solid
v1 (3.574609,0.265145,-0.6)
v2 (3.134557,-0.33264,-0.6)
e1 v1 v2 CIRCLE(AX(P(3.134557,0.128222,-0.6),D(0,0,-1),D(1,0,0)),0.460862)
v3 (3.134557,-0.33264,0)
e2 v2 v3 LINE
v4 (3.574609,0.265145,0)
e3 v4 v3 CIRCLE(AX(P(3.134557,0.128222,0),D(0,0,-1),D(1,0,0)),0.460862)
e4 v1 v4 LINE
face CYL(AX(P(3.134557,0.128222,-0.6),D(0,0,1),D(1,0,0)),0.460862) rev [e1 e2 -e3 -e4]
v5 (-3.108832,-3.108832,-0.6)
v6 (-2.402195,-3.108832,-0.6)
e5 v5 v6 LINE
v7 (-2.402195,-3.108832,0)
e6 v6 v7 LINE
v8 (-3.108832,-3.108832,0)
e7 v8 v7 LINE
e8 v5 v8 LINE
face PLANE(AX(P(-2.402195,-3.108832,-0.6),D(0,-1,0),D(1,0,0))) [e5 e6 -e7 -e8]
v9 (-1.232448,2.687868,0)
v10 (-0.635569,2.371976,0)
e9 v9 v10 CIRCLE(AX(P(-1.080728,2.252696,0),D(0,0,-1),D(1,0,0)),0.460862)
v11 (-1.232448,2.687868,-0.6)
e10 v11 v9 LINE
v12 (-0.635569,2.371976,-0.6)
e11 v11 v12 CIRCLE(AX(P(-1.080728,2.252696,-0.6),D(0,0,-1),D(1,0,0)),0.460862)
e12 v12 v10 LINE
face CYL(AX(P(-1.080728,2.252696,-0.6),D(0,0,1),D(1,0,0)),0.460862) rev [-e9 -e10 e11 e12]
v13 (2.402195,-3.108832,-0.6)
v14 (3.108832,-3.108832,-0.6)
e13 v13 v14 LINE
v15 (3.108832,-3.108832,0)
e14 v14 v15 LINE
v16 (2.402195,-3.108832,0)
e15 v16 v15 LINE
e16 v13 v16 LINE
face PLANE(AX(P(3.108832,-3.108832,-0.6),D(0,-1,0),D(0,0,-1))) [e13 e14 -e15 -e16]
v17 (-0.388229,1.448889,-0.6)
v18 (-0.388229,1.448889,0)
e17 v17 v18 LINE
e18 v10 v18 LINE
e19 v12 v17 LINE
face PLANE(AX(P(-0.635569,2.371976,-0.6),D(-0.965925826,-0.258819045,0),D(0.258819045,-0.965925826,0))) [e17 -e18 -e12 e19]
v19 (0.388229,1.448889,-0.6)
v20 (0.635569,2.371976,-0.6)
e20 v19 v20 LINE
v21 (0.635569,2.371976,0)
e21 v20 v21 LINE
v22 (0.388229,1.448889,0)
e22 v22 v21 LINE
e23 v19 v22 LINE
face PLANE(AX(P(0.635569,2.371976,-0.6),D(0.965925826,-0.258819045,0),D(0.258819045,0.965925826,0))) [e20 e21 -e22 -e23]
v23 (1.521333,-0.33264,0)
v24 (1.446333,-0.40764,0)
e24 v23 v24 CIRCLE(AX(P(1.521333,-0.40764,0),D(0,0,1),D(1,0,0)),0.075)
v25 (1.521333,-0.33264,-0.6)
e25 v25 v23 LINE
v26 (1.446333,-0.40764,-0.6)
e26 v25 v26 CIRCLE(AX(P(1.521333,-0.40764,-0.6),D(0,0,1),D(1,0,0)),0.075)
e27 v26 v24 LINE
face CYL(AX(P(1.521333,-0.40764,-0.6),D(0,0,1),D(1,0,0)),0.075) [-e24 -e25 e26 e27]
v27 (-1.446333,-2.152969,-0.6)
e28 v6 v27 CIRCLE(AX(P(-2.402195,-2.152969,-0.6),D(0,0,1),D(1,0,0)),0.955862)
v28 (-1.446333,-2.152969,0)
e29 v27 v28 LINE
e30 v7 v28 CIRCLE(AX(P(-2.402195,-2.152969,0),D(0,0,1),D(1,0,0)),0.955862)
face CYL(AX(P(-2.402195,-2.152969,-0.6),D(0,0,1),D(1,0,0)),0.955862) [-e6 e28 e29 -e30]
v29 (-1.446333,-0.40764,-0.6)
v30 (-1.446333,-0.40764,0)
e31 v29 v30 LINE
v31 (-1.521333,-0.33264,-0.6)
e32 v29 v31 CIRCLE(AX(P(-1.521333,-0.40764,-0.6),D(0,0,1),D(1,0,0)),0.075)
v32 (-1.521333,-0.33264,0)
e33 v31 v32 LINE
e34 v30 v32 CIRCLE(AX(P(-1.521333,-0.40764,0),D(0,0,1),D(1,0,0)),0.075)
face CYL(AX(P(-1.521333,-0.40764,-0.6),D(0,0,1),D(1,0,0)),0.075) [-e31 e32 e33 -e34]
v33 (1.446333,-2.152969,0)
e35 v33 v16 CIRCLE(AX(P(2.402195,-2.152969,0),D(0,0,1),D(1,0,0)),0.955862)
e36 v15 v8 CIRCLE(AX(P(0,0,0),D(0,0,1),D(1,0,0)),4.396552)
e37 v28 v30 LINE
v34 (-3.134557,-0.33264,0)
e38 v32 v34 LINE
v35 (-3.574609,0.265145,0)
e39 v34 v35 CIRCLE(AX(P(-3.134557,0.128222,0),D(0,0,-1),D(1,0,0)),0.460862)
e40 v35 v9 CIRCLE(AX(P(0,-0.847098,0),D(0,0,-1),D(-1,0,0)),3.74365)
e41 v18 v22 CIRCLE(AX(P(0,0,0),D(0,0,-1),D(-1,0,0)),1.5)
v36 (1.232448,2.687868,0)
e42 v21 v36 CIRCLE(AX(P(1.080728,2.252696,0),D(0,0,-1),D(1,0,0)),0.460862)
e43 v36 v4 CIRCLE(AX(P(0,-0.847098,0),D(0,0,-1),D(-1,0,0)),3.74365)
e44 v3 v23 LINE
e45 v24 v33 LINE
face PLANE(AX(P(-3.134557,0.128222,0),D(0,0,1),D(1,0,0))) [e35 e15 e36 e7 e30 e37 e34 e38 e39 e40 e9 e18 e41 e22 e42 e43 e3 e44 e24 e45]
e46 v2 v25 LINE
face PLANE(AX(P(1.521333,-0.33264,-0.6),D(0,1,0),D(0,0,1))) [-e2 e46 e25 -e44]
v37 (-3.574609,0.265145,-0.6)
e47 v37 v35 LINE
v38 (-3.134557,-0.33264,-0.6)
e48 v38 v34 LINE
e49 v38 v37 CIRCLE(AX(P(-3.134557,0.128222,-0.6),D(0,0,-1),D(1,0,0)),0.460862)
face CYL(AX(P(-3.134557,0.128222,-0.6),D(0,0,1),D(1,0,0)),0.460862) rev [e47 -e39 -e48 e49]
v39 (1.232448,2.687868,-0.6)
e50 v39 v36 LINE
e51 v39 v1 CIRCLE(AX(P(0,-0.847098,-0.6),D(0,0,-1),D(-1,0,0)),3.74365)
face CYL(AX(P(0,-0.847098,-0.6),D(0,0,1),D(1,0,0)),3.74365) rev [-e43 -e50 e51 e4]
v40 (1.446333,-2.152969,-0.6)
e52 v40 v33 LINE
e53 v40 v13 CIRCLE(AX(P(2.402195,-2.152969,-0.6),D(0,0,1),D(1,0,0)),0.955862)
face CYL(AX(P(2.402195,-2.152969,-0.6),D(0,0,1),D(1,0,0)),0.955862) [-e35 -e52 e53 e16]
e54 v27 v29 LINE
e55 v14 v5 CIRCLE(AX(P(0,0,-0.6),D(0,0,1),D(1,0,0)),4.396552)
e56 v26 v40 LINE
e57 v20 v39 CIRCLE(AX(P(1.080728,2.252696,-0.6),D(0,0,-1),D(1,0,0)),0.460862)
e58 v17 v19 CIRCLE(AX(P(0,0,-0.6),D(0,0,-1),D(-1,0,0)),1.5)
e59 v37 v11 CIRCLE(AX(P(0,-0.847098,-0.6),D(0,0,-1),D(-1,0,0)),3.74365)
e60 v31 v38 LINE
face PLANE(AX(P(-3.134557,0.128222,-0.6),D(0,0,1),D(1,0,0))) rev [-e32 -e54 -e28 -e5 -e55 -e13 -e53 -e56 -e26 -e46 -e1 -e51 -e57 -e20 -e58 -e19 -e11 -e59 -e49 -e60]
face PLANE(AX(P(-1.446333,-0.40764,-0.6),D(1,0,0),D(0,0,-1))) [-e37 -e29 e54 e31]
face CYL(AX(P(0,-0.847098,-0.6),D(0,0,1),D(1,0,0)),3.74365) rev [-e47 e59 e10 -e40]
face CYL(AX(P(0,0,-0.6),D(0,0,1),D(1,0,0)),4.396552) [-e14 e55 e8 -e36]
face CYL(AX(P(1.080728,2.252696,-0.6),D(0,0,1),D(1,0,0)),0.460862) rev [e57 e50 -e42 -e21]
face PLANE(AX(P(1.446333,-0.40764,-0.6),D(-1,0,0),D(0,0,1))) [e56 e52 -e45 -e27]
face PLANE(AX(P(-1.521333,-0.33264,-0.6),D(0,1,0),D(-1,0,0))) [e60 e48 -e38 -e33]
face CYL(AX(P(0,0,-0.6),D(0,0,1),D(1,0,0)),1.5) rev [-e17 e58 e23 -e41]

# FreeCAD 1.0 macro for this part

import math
import FreeCAD as App
import Part
import Sketcher
Q = App.Units.Quantity

doc = App.newDocument("Part")
body = doc.addObject("PartDesign::Body", "Body")

sketch1 = body.newObject("Sketcher::SketchObject", "Sketch")
sketch1.AttachmentSupport = (doc.getObject("XY_Plane"), [""])
sketch1.MapMode = "FlatFace"
sketch1.addGeometry([
    Part.LineSegment(App.Vector(2.4, -3.11, 0), App.Vector(3.11, -3.11, 0)),
    Part.ArcOfCircle(Part.Circle(App.Vector(0, 0, 0), App.Vector(0, 0, 1), 4.4), math.radians(-45), math.radians(225)),
    Part.LineSegment(App.Vector(-3.11, -3.11, 0), App.Vector(-2.4, -3.11, 0)),
    Part.ArcOfCircle(Part.Circle(App.Vector(-2.4, -2.15, 0), App.Vector(0, 0, 1), 0.96), math.radians(-90), math.radians(0)),
    Part.LineSegment(App.Vector(-1.45, -2.15, 0), App.Vector(-1.45, -0.41, 0)),
    Part.ArcOfCircle(Part.Circle(App.Vector(-1.52, -0.41, 0), App.Vector(0, 0, 1), 0.07), math.radians(0), math.radians(90)),
    Part.LineSegment(App.Vector(-1.52, -0.33, 0), App.Vector(-3.13, -0.33, 0)),
    Part.ArcOfCircle(Part.Circle(App.Vector(-3.13, 0.13, 0), App.Vector(0, 0, 1), 0.46), math.radians(163), math.radians(270)),
    Part.ArcOfCircle(Part.Circle(App.Vector(0, -0.85, 0), App.Vector(0, 0, 1), 3.74), math.radians(109), math.radians(163)),
    Part.ArcOfCircle(Part.Circle(App.Vector(-1.08, 2.25, 0), App.Vector(0, 0, 1), 0.46), math.radians(15), math.radians(109)),
    Part.LineSegment(App.Vector(-0.64, 2.37, 0), App.Vector(-0.39, 1.45, 0)),
    Part.ArcOfCircle(Part.Circle(App.Vector(0, 0, 0), App.Vector(0, 0, 1), 1.5), math.radians(75), math.radians(105)),
    Part.LineSegment(App.Vector(0.39, 1.45, 0), App.Vector(0.64, 2.37, 0)),
    Part.ArcOfCircle(Part.Circle(App.Vector(1.08, 2.25, 0), App.Vector(0, 0, 1), 0.46), math.radians(71), math.radians(165)),
    Part.ArcOfCircle(Part.Circle(App.Vector(0, -0.85, 0), App.Vector(0, 0, 1), 3.74), math.radians(17), math.radians(71)),
    Part.ArcOfCircle(Part.Circle(App.Vector(3.13, 0.13, 0), App.Vector(0, 0, 1), 0.46), math.radians(-90), math.radians(17)),
    Part.LineSegment(App.Vector(3.13, -0.33, 0), App.Vector(1.52, -0.33, 0)),
    Part.ArcOfCircle(Part.Circle(App.Vector(1.52, -0.41, 0), App.Vector(0, 0, 1), 0.07), math.radians(90), math.radians(180)),
    Part.LineSegment(App.Vector(1.45, -0.41, 0), App.Vector(1.45, -2.15, 0)),
    Part.ArcOfCircle(Part.Circle(App.Vector(2.4, -2.15, 0), App.Vector(0, 0, 1), 0.96), math.radians(-180), math.radians(-90)),
], False)
sketch1.addConstraint([
    Sketcher.Constraint("Coincident", 0, 2, 1, 1),
    Sketcher.Constraint("Coincident", 1, 2, 2, 1),
    Sketcher.Constraint("Tangent", 2, 2, 3, 1),
    Sketcher.Constraint("Tangent", 3, 2, 4, 1),
    Sketcher.Constraint("Tangent", 4, 2, 5, 1),
    Sketcher.Constraint("Tangent", 5, 2, 6, 1),
    Sketcher.Constraint("Tangent", 6, 2, 7, 2),
    Sketcher.Constraint("Tangent", 7, 1, 8, 2),
    Sketcher.Constraint("Tangent", 8, 1, 9, 2),
    Sketcher.Constraint("Tangent", 9, 1, 10, 1),
    Sketcher.Constraint("Coincident", 10, 2, 11, 2),
    Sketcher.Constraint("Coincident", 11, 1, 12, 1),
    Sketcher.Constraint("Tangent", 12, 2, 13, 2),
    Sketcher.Constraint("Tangent", 13, 1, 14, 2),
    Sketcher.Constraint("Tangent", 14, 1, 15, 2),
    Sketcher.Constraint("Tangent", 15, 1, 16, 1),
    Sketcher.Constraint("Tangent", 16, 2, 17, 1),
    Sketcher.Constraint("Tangent", 17, 2, 18, 1),
    Sketcher.Constraint("Tangent", 18, 2, 19, 1),
    Sketcher.Constraint("Tangent", 19, 2, 0, 1),
    Sketcher.Constraint("Horizontal", 0),
    Sketcher.Constraint("Horizontal", 2),
    Sketcher.Constraint("Vertical", 4),
    Sketcher.Constraint("Horizontal", 6),
    Sketcher.Constraint("Horizontal", 16),
    Sketcher.Constraint("Vertical", 18),
    Sketcher.Constraint("Coincident", 1, 3, -1, 1),
    Sketcher.Constraint("Coincident", 11, 3, -1, 1),
    Sketcher.Constraint("Coincident", 14, 3, 8, 3),
    Sketcher.Constraint("Equal", 7, 9),
    Sketcher.Constraint("Equal", 9, 13),
    Sketcher.Constraint("Equal", 8, 14),
    Sketcher.Constraint("Equal", 13, 15),
    Sketcher.Constraint("Equal", 5, 17),
    Sketcher.Constraint("Equal", 3, 19),
    Sketcher.Constraint("Symmetric", 9, 3, 13, 3, -2),
    Sketcher.Constraint("Symmetric", 5, 3, 17, 3, -2),
    Sketcher.Constraint("Horizontal", 3, 3, 19, 3),
    Sketcher.Constraint("Horizontal", 10, 2, 11, 1),
    Sketcher.Constraint("Radius", 11, Q("1.5 mm")),
    Sketcher.Constraint("Angle", 10, Q("-75 deg")),
    Sketcher.Constraint("Radius", 5, Q("0.075 mm")),
    Sketcher.Constraint("Radius", 1, Q("4.396552 mm")),
    Sketcher.Constraint("Radius", 8, Q("3.74365 mm")),
    Sketcher.Constraint("Radius", 3, Q("0.955862 mm")),
    Sketcher.Constraint("Radius", 7, Q("0.460862 mm")),
    Sketcher.Constraint("DistanceY", 4, 1, 4, 2, Q("1.745329 mm")),
    Sketcher.Constraint("DistanceY", 8, 3, -1, 1, Q("0.847098 mm")),
    Sketcher.Constraint("DistanceX", 17, 3, 0, 2, Q("1.587498 mm")),
    Sketcher.Constraint("DistanceX", 9, 3, 10, 2, Q("0.692499 mm")),
    Sketcher.Constraint("DistanceX", 6, 2, 6, 1, Q("1.613224 mm")),
])
pad1 = body.newObject("PartDesign::Pad", "Pad")
pad1.Profile = sketch1
pad1.Length = 0.6
pad1.Reversed = True

doc.recompute()
